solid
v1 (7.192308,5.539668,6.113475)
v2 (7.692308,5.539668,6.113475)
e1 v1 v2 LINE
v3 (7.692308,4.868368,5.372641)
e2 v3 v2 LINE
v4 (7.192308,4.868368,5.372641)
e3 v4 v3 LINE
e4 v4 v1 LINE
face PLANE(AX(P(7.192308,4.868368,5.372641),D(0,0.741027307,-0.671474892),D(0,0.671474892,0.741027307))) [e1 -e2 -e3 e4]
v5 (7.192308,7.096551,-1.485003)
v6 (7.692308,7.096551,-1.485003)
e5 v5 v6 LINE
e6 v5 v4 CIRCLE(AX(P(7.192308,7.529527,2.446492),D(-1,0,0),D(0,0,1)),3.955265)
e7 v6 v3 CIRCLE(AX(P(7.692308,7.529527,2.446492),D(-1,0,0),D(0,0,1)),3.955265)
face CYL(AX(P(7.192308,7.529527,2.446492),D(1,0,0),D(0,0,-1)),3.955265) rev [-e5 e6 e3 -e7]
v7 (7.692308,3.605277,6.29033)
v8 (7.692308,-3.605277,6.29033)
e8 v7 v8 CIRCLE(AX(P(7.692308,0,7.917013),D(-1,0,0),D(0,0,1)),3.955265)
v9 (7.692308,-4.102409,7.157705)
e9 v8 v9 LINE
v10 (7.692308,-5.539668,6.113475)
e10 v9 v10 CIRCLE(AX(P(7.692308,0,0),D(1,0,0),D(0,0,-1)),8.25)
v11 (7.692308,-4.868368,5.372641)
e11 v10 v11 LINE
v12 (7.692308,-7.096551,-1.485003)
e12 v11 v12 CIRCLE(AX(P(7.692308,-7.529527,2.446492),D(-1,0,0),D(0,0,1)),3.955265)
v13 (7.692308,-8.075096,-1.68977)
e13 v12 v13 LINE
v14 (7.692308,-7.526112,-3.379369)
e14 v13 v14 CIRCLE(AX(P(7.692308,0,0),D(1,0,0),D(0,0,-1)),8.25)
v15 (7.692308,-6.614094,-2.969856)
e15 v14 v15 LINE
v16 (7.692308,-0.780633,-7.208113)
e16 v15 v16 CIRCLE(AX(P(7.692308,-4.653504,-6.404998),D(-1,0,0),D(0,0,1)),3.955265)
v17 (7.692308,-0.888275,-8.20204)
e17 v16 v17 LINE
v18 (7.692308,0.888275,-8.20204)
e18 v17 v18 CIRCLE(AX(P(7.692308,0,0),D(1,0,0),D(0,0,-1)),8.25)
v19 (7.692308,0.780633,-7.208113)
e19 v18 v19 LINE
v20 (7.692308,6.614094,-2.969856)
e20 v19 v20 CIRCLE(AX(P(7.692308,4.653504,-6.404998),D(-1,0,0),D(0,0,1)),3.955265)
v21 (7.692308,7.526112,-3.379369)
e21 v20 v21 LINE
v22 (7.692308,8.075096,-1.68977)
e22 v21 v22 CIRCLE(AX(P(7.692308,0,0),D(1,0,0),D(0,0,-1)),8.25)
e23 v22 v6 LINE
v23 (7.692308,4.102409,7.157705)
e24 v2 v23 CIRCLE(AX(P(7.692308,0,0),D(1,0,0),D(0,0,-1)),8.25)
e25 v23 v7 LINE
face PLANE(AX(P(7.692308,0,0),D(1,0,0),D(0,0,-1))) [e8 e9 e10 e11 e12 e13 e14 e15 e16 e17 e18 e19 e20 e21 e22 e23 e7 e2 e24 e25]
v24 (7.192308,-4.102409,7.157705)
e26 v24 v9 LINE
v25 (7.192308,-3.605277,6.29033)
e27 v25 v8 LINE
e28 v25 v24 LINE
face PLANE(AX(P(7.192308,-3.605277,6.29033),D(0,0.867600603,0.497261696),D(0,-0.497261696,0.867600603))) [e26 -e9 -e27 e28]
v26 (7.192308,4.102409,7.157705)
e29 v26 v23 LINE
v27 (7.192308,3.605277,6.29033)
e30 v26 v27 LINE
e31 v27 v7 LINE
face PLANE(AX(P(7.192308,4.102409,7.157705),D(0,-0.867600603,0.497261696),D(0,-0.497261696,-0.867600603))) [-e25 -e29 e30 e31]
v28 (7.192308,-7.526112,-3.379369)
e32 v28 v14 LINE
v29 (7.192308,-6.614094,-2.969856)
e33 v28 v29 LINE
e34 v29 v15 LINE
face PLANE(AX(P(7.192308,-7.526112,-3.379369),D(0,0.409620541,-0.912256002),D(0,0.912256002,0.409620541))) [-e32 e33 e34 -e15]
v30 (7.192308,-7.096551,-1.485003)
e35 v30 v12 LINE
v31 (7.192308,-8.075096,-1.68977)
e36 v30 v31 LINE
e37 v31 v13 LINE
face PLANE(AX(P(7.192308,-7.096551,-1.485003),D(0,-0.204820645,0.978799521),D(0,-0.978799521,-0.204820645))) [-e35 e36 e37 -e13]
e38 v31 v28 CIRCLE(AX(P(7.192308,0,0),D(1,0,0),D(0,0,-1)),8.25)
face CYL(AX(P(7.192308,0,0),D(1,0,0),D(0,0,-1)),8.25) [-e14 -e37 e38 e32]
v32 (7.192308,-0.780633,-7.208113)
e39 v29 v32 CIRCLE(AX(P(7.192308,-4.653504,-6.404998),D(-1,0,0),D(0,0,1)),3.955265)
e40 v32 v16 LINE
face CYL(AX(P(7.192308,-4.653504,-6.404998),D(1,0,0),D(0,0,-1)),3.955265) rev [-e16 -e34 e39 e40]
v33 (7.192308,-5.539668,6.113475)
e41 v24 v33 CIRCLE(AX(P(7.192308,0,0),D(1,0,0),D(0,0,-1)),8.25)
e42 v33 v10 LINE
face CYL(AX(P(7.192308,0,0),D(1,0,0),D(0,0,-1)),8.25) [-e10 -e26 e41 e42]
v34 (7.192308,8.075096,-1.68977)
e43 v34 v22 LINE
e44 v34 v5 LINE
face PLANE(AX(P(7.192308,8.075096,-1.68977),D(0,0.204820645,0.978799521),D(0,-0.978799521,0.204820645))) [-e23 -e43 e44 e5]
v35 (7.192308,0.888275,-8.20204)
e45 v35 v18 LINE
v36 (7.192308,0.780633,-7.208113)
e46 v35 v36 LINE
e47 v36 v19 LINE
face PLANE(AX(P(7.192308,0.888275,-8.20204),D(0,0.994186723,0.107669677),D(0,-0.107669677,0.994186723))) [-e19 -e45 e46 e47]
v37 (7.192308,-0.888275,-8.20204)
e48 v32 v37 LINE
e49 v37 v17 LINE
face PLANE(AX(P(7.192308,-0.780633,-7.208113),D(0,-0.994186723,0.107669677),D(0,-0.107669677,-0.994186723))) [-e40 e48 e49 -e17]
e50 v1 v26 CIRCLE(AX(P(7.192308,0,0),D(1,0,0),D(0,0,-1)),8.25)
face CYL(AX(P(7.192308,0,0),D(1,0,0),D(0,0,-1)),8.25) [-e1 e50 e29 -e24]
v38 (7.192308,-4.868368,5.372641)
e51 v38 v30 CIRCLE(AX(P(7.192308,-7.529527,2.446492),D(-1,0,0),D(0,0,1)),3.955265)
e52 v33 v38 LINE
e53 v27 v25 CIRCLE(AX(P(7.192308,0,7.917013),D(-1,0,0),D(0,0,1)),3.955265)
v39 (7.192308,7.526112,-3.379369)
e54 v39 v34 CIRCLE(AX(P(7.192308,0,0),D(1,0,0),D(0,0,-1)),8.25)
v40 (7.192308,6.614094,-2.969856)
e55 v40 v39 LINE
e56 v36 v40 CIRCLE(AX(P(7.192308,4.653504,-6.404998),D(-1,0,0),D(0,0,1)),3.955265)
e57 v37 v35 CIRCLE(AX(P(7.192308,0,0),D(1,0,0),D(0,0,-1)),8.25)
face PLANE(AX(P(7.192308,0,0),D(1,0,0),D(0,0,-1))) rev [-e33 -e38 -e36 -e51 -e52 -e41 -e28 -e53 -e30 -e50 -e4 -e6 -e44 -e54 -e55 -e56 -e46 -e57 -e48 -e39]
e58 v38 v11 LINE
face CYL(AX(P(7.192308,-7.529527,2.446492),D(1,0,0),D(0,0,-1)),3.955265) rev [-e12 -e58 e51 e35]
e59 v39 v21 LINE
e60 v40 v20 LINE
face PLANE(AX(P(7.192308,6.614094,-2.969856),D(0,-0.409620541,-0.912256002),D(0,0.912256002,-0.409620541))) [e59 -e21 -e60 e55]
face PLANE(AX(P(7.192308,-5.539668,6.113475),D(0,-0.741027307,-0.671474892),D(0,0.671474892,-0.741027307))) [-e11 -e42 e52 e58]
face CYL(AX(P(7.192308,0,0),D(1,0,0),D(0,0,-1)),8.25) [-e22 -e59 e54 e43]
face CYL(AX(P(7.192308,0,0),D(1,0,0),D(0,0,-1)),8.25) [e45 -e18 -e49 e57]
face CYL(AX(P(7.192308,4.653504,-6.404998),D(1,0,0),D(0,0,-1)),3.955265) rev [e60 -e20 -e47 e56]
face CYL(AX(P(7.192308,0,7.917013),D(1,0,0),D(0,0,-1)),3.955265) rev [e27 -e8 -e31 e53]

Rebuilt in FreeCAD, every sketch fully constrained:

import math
import FreeCAD as App
import Part
import Sketcher
from FreeCAD import Vector
Q = App.Units.Quantity

doc = App.newDocument("Part")
body = doc.addObject("PartDesign::Body", "Body")

sketch1 = body.newObject("Sketcher::SketchObject", "Sketch")
sketch1.AttachmentSupport = (doc.getObject("YZ_Plane"), [""])
sketch1.MapMode = "FlatFace"
sketch1.AttachmentOffset = App.Placement(Vector(0, 0, 7.692308), App.Rotation())
sketch1.addGeometry(Part.LineSegment(Vector(-5.5, 6.1, 0), Vector(-4.9, 5.4, 0)), False)
sketch1.addGeometry(Part.ArcOfCircle(Part.Circle(Vector(-7.5, 2.4, 0), Vector(0, 0, 1), 4), math.radians(-84), math.radians(48)), False)
sketch1.addGeometry(Part.LineSegment(Vector(-7.1, -1.5, 0), Vector(-8.1, -1.7, 0)), False)
sketch1.addGeometry(Part.ArcOfCircle(Part.Circle(Vector(0, 0, 0), Vector(0, 0, 1), 8.3), math.radians(-168.18), math.radians(-155.82)), False)
sketch1.addGeometry(Part.LineSegment(Vector(-7.5, -3.4, 0), Vector(-6.6, -3, 0)), False)
sketch1.addGeometry(Part.ArcOfCircle(Part.Circle(Vector(-4.7, -6.4, 0), Vector(0, 0, 1), 4), math.radians(-12), math.radians(120)), False)
sketch1.addGeometry(Part.LineSegment(Vector(-0.8, -7.2, 0), Vector(-0.9, -8.2, 0)), False)
sketch1.addGeometry(Part.ArcOfCircle(Part.Circle(Vector(0, 0, 0), Vector(0, 0, 1), 8.3), math.radians(-96.18), math.radians(-83.82)), False)
sketch1.addGeometry(Part.LineSegment(Vector(0.9, -8.2, 0), Vector(0.8, -7.2, 0)), False)
sketch1.addGeometry(Part.ArcOfCircle(Part.Circle(Vector(4.7, -6.4, 0), Vector(0, 0, 1), 4), math.radians(60), math.radians(192)), False)
sketch1.addGeometry(Part.LineSegment(Vector(6.6, -3, 0), Vector(7.5, -3.4, 0)), False)
sketch1.addGeometry(Part.ArcOfCircle(Part.Circle(Vector(0, 0, 0), Vector(0, 0, 1), 8.3), math.radians(-24.18), math.radians(-11.82)), False)
sketch1.addGeometry(Part.LineSegment(Vector(8.1, -1.7, 0), Vector(7.1, -1.5, 0)), False)
sketch1.addGeometry(Part.ArcOfCircle(Part.Circle(Vector(7.5, 2.4, 0), Vector(0, 0, 1), 4), math.radians(132), math.radians(264)), False)
sketch1.addGeometry(Part.LineSegment(Vector(4.9, 5.4, 0), Vector(5.5, 6.1, 0)), False)
sketch1.addGeometry(Part.ArcOfCircle(Part.Circle(Vector(0, 0, 0), Vector(0, 0, 1), 8.3), math.radians(47.82), math.radians(60.18)), False)
sketch1.addGeometry(Part.LineSegment(Vector(4.1, 7.2, 0), Vector(3.6, 6.3, 0)), False)
sketch1.addGeometry(Part.ArcOfCircle(Part.Circle(Vector(0, 7.9, 0), Vector(0, 0, 1), 4), math.radians(-156), math.radians(-24)), False)
sketch1.addGeometry(Part.LineSegment(Vector(-3.6, 6.3, 0), Vector(-4.1, 7.2, 0)), False)
sketch1.addGeometry(Part.ArcOfCircle(Part.Circle(Vector(0, 0, 0), Vector(0, 0, 1), 8.3), math.radians(119.82), math.radians(132.18)), False)
sketch1.addConstraint(Sketcher.Constraint("Coincident", 0, 2, 1, 2))
sketch1.addConstraint(Sketcher.Constraint("Coincident", 1, 1, 2, 1))
sketch1.addConstraint(Sketcher.Constraint("Coincident", 2, 2, 3, 1))
sketch1.addConstraint(Sketcher.Constraint("Coincident", 3, 2, 4, 1))
sketch1.addConstraint(Sketcher.Constraint("Coincident", 4, 2, 5, 2))
sketch1.addConstraint(Sketcher.Constraint("Coincident", 5, 1, 6, 1))
sketch1.addConstraint(Sketcher.Constraint("Coincident", 6, 2, 7, 1))
sketch1.addConstraint(Sketcher.Constraint("Coincident", 7, 2, 8, 1))
sketch1.addConstraint(Sketcher.Constraint("Coincident", 8, 2, 9, 2))
sketch1.addConstraint(Sketcher.Constraint("Coincident", 9, 1, 10, 1))
sketch1.addConstraint(Sketcher.Constraint("Coincident", 10, 2, 11, 1))
sketch1.addConstraint(Sketcher.Constraint("Coincident", 11, 2, 12, 1))
sketch1.addConstraint(Sketcher.Constraint("Coincident", 12, 2, 13, 2))
sketch1.addConstraint(Sketcher.Constraint("Coincident", 13, 1, 14, 1))
sketch1.addConstraint(Sketcher.Constraint("Coincident", 14, 2, 15, 1))
sketch1.addConstraint(Sketcher.Constraint("Coincident", 15, 2, 16, 1))
sketch1.addConstraint(Sketcher.Constraint("Coincident", 16, 2, 17, 2))
sketch1.addConstraint(Sketcher.Constraint("Coincident", 17, 1, 18, 1))
sketch1.addConstraint(Sketcher.Constraint("Coincident", 18, 2, 19, 1))
sketch1.addConstraint(Sketcher.Constraint("Coincident", 19, 2, 0, 1))
sketch1.addConstraint(Sketcher.Constraint("Coincident", 3, 3, -1, 1))
sketch1.addConstraint(Sketcher.Constraint("Coincident", 7, 3, -1, 1))
sketch1.addConstraint(Sketcher.Constraint("Coincident", 11, 3, -1, 1))
sketch1.addConstraint(Sketcher.Constraint("Coincident", 15, 3, -1, 1))
sketch1.addConstraint(Sketcher.Constraint("Coincident", 19, 3, -1, 1))
sketch1.addConstraint(Sketcher.Constraint("Equal", 1, 5))
sketch1.addConstraint(Sketcher.Constraint("Equal", 3, 7))
sketch1.addConstraint(Sketcher.Constraint("Equal", 5, 9))
sketch1.addConstraint(Sketcher.Constraint("Equal", 7, 11))
sketch1.addConstraint(Sketcher.Constraint("Equal", 9, 13))
sketch1.addConstraint(Sketcher.Constraint("Equal", 11, 15))
sketch1.addConstraint(Sketcher.Constraint("Equal", 13, 17))
sketch1.addConstraint(Sketcher.Constraint("Equal", 15, 19))
sketch1.addConstraint(Sketcher.Constraint("Symmetric", 5, 3, 9, 3, -2))
sketch1.addConstraint(Sketcher.Constraint("Symmetric", 1, 3, 13, 3, -2))
sketch1.addConstraint(Sketcher.Constraint("Symmetric", 16, 2, 17, 1, -2))
sketch1.addConstraint(Sketcher.Constraint("Horizontal", 6, 2, 7, 2))
sketch1.addConstraint(Sketcher.Constraint("Horizontal", 5, 1, 8, 2))
sketch1.addConstraint(Sketcher.Constraint("Horizontal", 4, 2, 9, 1))
sketch1.addConstraint(Sketcher.Constraint("Horizontal", 3, 2, 10, 2))
sketch1.addConstraint(Sketcher.Constraint("Horizontal", 2, 2, 11, 2))
sketch1.addConstraint(Sketcher.Constraint("Horizontal", 1, 1, 12, 2))
sketch1.addConstraint(Sketcher.Constraint("Horizontal", 0, 2, 13, 1))
sketch1.addConstraint(Sketcher.Constraint("Horizontal", 15, 2, 18, 2))
sketch1.addConstraint(Sketcher.Constraint("Horizontal", 14, 2, 19, 2))
sketch1.addConstraint(Sketcher.Constraint("Equal", 0, 2))
sketch1.addConstraint(Sketcher.Constraint("Equal", 2, 4))
sketch1.addConstraint(Sketcher.Constraint("Equal", 4, 6))
sketch1.addConstraint(Sketcher.Constraint("Equal", 14, 16))
sketch1.addConstraint(Sketcher.Constraint("Radius", 3, Q("8.25 mm")))
sketch1.addConstraint(Sketcher.Constraint("DistanceY", 5, 3, -1, 1, Q("6.404998 mm")))
sketch1.addConstraint(Sketcher.Constraint("Radius", 1, Q("3.955265 mm")))
sketch1.addConstraint(Sketcher.Constraint("DistanceY", 3, 2, 2, 2, Q("1.689599 mm")))
sketch1.addConstraint(Sketcher.Constraint("DistanceX", 13, 1, 14, 2, Q("0.6713 mm")))
sketch1.addConstraint(Sketcher.Constraint("Distance", 0, Q("0.99974 mm")))
sketch1.addConstraint(Sketcher.Constraint("DistanceY", -1, 1, 1, 3, Q("2.446492 mm")))
sketch1.addConstraint(Sketcher.Constraint("DistanceY", -1, 1, 0, 2, Q("5.372641 mm")))
sketch1.addConstraint(Sketcher.Constraint("DistanceY", 2, 2, -1, 1, Q("1.68977 mm")))
sketch1.addConstraint(Sketcher.Constraint("DistanceY", 6, 2, -1, 1, Q("8.20204 mm")))
sketch1.addConstraint(Sketcher.Constraint("DistanceX", -1, 1, 15, 2, Q("4.102409 mm")))
sketch1.addConstraint(Sketcher.Constraint("DistanceY", -1, 1, 16, 2, Q("6.29033 mm")))
sketch1.addConstraint(Sketcher.Constraint("DistanceX", 1, 3, 9, 3, Q("12.183031 mm")))
pad1 = body.newObject("PartDesign::Pad", "Pad")
pad1.Profile = sketch1
pad1.Length = 0.5
pad1.Reversed = True

doc.recompute()
